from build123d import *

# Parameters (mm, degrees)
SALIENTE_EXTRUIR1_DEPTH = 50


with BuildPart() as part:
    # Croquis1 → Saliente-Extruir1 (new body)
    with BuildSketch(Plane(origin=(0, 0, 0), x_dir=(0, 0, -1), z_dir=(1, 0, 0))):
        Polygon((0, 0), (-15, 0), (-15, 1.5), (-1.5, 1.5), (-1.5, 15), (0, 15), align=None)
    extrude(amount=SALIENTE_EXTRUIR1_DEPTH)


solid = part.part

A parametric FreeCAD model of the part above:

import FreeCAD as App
import Part
import Sketcher

V = App.Vector

doc = App.newDocument("Part")
body = doc.addObject("PartDesign::Body", "Body")

sketch1 = body.newObject("Sketcher::SketchObject", "Sketch")
sketch1.AttachmentSupport = (doc.getObject("YZ_Plane"), [""])
sketch1.MapMode = "FlatFace"
sketch1.addGeometry(Part.LineSegment(V(0, 15, 0), V(0, 0, 0)), False)
sketch1.addGeometry(Part.LineSegment(V(0, 0, 0), V(15, 0, 0)), False)
sketch1.addGeometry(Part.LineSegment(V(15, 0, 0), V(15, 1.5, 0)), False)
sketch1.addGeometry(Part.LineSegment(V(15, 1.5, 0), V(1.5, 1.5, 0)), False)
sketch1.addGeometry(Part.LineSegment(V(1.5, 1.5, 0), V(1.5, 15, 0)), False)
sketch1.addGeometry(Part.LineSegment(V(1.5, 15, 0), V(0, 15, 0)), False)
sketch1.addConstraint(Sketcher.Constraint("Coincident", 0, 2, 1, 1))
sketch1.addConstraint(Sketcher.Constraint("Coincident", 1, 2, 2, 1))
sketch1.addConstraint(Sketcher.Constraint("Coincident", 2, 2, 3, 1))
sketch1.addConstraint(Sketcher.Constraint("Coincident", 3, 2, 4, 1))
sketch1.addConstraint(Sketcher.Constraint("Coincident", 4, 2, 5, 1))
sketch1.addConstraint(Sketcher.Constraint("Coincident", 5, 2, 0, 1))
sketch1.addConstraint(Sketcher.Constraint("Vertical", 0))
sketch1.addConstraint(Sketcher.Constraint("Horizontal", 1))
sketch1.addConstraint(Sketcher.Constraint("Vertical", 2))
sketch1.addConstraint(Sketcher.Constraint("Horizontal", 3))
sketch1.addConstraint(Sketcher.Constraint("Vertical", 4))
sketch1.addConstraint(Sketcher.Constraint("Horizontal", 5))
sketch1.addConstraint(Sketcher.Constraint("Coincident", 0, 2, -1, 1))
sketch1.addConstraint(Sketcher.Constraint("Equal", 1, 0))
sketch1.addConstraint(Sketcher.Constraint("Equal", 5, 2))
sketch1.addConstraint(Sketcher.Constraint("DistanceX", 1, 1, 1, 2, 15.0))
sketch1.addConstraint(Sketcher.Constraint("DistanceX", 3, 2, 3, 1, 13.5))
pad1 = body.newObject("PartDesign::Pad", "Pad")
pad1.Profile = sketch1
pad1.Length = 50

doc.recompute()
